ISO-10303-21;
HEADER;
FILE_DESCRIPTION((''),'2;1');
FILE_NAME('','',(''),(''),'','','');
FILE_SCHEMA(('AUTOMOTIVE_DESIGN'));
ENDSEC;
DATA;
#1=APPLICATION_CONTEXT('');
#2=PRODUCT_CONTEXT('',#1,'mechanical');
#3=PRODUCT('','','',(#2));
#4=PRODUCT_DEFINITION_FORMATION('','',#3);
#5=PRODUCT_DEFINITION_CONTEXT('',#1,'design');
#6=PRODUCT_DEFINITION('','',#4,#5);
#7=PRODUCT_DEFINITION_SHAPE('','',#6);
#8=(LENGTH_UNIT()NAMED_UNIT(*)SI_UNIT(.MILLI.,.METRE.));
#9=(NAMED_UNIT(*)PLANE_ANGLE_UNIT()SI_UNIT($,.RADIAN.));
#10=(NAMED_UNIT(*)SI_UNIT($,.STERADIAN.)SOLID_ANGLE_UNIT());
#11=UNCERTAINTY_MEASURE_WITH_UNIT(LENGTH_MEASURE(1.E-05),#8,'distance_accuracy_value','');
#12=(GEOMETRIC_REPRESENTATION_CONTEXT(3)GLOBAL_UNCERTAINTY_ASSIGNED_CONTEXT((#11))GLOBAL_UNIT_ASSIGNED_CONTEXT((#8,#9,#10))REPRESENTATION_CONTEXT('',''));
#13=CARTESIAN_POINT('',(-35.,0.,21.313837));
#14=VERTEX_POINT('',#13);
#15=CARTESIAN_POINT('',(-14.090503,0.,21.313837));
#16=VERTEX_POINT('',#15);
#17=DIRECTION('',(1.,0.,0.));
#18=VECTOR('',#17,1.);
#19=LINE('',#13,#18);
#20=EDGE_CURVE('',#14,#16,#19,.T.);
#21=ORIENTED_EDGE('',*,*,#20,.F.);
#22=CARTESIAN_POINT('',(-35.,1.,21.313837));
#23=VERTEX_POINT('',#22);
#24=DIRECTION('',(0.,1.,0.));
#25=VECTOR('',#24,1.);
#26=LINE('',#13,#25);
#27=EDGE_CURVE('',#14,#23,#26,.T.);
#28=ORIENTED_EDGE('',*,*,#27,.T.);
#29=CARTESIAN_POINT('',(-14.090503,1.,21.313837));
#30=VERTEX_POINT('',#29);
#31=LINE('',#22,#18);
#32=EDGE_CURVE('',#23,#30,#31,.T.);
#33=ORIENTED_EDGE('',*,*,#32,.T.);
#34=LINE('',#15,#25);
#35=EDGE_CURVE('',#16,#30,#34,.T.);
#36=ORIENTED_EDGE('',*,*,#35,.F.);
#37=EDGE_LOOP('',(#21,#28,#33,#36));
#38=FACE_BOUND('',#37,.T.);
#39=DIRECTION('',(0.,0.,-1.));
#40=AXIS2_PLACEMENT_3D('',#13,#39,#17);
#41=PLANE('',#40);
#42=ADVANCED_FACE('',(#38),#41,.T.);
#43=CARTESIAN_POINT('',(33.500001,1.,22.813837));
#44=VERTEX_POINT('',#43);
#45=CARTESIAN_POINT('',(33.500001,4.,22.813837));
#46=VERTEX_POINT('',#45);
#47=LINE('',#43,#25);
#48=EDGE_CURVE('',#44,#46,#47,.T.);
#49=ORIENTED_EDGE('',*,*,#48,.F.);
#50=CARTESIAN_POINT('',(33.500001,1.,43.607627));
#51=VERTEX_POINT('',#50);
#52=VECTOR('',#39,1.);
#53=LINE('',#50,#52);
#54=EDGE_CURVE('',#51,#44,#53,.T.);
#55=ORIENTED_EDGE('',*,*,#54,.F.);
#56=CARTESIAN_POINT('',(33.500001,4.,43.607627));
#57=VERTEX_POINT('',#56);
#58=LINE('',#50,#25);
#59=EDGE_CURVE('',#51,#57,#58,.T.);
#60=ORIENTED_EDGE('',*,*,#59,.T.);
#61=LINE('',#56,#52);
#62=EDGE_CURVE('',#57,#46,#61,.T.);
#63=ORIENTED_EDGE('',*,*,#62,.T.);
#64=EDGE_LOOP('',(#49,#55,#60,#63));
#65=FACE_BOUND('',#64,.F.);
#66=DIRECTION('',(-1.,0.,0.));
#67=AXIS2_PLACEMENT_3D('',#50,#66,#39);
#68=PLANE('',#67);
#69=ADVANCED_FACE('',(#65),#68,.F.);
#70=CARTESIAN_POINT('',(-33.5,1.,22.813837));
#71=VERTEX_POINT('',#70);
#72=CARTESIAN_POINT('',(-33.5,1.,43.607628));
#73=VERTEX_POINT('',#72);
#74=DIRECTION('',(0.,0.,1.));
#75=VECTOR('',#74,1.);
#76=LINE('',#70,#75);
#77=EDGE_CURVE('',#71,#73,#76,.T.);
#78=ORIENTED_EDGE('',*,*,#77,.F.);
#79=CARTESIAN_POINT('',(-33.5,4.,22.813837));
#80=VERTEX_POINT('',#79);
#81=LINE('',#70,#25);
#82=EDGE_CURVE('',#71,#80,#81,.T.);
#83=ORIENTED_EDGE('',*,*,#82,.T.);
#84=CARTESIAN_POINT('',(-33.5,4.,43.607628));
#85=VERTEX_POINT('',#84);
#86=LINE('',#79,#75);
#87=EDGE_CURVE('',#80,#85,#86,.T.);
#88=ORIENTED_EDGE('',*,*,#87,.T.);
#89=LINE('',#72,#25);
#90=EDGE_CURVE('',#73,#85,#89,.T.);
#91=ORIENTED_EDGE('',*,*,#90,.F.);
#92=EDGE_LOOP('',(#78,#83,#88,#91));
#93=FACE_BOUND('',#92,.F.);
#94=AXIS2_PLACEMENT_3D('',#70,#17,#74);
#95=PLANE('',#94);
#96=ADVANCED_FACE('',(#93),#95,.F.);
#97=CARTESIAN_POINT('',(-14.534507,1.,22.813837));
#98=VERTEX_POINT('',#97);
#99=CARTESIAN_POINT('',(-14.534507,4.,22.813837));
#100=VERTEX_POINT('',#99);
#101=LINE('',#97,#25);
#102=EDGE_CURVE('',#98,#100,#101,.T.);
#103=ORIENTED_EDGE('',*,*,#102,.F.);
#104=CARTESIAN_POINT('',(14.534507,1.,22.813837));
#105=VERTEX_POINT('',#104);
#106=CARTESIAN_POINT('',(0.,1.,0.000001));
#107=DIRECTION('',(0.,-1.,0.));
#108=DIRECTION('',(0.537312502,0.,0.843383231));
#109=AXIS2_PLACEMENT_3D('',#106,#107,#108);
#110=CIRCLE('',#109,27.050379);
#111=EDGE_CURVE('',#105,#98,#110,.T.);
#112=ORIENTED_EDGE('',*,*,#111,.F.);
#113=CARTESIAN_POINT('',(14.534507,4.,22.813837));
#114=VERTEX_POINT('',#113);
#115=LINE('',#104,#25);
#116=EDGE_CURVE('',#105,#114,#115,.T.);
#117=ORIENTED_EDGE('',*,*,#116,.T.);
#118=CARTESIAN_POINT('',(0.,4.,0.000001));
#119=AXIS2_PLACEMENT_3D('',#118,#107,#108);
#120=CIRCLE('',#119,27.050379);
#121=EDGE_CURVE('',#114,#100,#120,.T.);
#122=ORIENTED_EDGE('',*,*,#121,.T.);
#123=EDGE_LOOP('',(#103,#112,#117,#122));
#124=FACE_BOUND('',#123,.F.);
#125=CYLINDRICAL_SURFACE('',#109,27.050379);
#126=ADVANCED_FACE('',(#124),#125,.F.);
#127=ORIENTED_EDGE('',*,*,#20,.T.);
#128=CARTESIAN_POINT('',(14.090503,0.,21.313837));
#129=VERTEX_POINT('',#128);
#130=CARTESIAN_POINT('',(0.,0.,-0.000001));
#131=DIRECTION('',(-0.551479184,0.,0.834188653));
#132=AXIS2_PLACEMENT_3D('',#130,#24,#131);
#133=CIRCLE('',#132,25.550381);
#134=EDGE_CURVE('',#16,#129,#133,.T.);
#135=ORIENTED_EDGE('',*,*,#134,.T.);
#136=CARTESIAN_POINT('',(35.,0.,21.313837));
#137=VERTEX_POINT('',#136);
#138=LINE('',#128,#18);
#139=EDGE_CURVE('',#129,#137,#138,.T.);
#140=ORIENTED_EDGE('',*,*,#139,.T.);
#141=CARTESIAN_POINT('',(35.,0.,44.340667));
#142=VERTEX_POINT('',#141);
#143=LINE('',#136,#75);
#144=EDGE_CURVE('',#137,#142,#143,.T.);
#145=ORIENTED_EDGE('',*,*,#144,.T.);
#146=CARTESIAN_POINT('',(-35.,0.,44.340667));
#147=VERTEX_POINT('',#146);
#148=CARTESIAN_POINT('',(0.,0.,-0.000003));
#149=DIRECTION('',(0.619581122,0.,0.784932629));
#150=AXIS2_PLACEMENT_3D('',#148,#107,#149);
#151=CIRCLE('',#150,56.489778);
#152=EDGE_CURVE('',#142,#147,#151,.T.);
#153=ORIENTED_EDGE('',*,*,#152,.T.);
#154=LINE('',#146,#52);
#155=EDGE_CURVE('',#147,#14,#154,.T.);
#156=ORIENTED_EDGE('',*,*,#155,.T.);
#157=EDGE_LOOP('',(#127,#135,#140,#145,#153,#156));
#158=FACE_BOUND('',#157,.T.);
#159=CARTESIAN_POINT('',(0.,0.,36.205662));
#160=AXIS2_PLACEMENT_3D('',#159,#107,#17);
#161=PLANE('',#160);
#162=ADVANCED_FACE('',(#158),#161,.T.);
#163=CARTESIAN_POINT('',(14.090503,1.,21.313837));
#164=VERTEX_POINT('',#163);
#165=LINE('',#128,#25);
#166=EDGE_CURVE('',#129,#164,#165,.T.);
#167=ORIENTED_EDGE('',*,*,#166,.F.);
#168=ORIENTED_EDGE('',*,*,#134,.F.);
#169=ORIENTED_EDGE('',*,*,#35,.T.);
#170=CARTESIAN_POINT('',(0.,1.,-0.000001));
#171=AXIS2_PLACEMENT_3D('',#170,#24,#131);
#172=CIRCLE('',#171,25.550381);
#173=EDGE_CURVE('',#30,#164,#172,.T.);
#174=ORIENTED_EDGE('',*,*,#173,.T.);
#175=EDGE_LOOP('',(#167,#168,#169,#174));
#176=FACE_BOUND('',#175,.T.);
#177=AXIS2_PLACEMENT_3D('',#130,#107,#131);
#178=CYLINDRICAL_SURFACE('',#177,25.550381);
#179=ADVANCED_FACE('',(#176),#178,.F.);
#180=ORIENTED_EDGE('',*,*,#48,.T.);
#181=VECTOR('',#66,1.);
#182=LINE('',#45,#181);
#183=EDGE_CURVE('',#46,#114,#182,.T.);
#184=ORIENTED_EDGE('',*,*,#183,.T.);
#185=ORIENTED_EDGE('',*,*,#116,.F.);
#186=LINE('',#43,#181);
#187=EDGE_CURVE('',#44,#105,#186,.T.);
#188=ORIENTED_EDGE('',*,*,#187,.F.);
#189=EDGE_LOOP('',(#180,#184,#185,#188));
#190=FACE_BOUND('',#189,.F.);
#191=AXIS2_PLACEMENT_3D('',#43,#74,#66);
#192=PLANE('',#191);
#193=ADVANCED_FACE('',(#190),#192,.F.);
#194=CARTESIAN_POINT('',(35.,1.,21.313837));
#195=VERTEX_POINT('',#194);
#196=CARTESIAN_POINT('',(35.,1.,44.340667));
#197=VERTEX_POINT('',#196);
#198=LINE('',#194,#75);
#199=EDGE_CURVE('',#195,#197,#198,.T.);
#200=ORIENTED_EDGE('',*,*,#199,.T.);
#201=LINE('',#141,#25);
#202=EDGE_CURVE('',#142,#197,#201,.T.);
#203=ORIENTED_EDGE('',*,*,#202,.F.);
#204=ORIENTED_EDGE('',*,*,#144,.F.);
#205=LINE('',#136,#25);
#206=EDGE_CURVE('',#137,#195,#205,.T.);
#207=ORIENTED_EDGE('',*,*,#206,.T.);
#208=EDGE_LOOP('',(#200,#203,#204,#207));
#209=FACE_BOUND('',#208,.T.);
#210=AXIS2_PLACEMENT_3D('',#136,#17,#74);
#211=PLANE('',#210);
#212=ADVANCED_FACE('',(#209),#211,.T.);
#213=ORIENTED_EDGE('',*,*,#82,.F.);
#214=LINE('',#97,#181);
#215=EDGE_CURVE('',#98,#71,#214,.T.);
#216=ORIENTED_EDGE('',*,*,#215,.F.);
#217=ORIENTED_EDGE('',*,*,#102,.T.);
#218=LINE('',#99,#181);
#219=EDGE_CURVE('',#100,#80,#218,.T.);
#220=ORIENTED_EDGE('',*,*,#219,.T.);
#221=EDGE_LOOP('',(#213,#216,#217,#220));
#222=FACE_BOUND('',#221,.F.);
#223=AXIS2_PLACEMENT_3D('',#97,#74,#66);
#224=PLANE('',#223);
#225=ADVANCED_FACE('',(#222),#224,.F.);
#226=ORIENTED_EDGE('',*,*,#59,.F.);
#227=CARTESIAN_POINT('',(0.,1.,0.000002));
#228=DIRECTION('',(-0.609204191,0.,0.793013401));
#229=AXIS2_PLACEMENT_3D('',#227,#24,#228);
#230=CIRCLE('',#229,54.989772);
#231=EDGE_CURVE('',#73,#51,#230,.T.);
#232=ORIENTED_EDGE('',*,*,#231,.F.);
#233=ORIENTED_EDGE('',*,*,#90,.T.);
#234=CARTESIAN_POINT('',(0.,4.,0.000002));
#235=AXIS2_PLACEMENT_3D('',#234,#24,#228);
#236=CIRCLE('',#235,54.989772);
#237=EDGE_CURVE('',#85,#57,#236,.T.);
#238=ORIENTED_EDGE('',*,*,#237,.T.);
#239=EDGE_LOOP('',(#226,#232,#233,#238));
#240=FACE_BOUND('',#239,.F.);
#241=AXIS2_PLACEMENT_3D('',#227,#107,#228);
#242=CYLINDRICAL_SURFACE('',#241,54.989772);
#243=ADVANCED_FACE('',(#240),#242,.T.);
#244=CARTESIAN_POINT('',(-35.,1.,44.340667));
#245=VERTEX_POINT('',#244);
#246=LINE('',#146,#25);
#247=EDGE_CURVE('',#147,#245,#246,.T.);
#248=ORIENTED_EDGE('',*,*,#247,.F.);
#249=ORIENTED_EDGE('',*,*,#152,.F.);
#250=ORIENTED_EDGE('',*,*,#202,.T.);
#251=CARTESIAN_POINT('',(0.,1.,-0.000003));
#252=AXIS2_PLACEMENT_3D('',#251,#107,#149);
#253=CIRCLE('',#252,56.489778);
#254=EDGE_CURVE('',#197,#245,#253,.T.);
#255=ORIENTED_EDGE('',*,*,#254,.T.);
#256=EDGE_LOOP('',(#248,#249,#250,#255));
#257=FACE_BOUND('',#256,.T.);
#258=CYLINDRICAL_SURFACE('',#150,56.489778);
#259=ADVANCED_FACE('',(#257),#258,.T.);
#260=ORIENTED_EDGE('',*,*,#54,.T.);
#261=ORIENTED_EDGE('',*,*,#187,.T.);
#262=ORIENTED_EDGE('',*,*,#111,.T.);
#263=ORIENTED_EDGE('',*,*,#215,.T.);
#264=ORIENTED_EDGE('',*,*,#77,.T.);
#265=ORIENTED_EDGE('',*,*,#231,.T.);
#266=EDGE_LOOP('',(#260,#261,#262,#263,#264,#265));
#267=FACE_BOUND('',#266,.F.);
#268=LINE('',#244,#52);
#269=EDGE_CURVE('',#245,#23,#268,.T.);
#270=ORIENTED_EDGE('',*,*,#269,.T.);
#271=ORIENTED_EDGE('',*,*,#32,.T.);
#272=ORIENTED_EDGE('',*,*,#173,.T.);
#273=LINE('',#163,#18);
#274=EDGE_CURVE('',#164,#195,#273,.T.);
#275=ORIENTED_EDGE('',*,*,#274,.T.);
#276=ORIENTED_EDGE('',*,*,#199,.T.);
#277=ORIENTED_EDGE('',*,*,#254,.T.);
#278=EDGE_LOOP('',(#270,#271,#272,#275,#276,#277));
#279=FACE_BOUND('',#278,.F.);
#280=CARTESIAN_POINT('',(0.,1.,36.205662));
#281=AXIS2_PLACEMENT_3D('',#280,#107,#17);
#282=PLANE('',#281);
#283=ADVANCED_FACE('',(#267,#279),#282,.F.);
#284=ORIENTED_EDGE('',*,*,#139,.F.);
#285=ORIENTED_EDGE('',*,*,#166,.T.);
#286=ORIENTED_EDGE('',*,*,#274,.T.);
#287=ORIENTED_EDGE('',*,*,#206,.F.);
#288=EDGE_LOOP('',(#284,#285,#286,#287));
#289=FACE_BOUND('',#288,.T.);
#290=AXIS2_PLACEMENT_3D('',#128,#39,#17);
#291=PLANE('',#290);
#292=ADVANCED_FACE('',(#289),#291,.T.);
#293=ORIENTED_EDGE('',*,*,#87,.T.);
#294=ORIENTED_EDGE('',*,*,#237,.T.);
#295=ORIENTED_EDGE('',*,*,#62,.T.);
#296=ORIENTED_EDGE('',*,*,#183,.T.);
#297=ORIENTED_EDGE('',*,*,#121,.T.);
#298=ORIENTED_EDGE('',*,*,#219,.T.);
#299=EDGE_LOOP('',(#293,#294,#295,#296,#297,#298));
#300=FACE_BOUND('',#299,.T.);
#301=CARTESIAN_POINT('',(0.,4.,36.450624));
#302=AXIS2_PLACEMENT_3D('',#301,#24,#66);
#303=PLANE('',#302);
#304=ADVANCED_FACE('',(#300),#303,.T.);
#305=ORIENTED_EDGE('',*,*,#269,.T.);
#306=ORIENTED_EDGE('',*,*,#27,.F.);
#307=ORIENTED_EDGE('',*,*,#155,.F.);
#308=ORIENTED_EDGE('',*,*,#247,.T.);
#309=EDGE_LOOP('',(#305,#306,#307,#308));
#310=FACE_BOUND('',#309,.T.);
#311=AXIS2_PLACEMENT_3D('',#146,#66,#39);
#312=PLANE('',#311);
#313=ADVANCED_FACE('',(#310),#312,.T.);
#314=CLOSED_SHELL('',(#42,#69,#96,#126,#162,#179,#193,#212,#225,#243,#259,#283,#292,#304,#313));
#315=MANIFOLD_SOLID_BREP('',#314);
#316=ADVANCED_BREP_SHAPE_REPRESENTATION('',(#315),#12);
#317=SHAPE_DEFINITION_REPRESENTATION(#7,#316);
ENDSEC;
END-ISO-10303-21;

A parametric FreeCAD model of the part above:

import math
import FreeCAD as App
import Part
import Sketcher
from FreeCAD import Vector

doc = App.newDocument("Part")
params = doc.addObject("Spreadsheet::Sheet", "Params")
for row, (alias, value) in enumerate([
    ("pad1_length", "1 mm"),
    ("pad2_length", "3 mm"),
], start=1):
    params.set(f"A{row}", alias)
    params.set(f"B{row}", "=" + value)
    params.setAlias(f"B{row}", alias)

body = doc.addObject("PartDesign::Body", "Body")

sketch1 = body.newObject("Sketcher::SketchObject", "Sketch")
sketch1.AttachmentSupport = (doc.getObject("XZ_Plane"), [""])
sketch1.MapMode = "FlatFace"
sketch1.addGeometry([
    Part.LineSegment(Vector(14, 21, 0), Vector(35, 21, 0)),
    Part.LineSegment(Vector(35, 21, 0), Vector(35, 44, 0)),
    Part.ArcOfCircle(Part.Circle(Vector(0, 0, 0), Vector(0, 0, 1), 56), math.radians(52), math.radians(128)),
    Part.LineSegment(Vector(-35, 44, 0), Vector(-35, 21, 0)),
    Part.LineSegment(Vector(-35, 21, 0), Vector(-14, 21, 0)),
    Part.ArcOfCircle(Part.Circle(Vector(0, 0, 0), Vector(0, 0, 1), 26), math.radians(57), math.radians(123)),
], False)
sketch1.addConstraint([
    Sketcher.Constraint("Coincident", 0, 2, 1, 1),
    Sketcher.Constraint("Coincident", 1, 2, 2, 1),
    Sketcher.Constraint("Coincident", 2, 2, 3, 1),
    Sketcher.Constraint("Coincident", 3, 2, 4, 1),
    Sketcher.Constraint("Coincident", 4, 2, 5, 2),
    Sketcher.Constraint("Coincident", 5, 1, 0, 1),
    Sketcher.Constraint("Horizontal", 0),
    Sketcher.Constraint("Vertical", 1),
    Sketcher.Constraint("Vertical", 3),
    Sketcher.Constraint("Horizontal", 4),
    Sketcher.Constraint("Coincident", 2, 3, -1, 1),
    Sketcher.Constraint("Coincident", 5, 3, -1, 1),
    Sketcher.Constraint("Symmetric", 0, 2, 3, 2, -2),
    Sketcher.Constraint("DistanceX", -1, 1, 0, 2, 35.0),
    Sketcher.Constraint("Radius", 5, 25.550381),
    Sketcher.Constraint("Radius", 2, 56.489778),
    Sketcher.Constraint("DistanceY", 1, 1, 1, 2, 23.02683),
])
pad1 = body.newObject("PartDesign::Pad", "Pad")
pad1.Profile = sketch1
pad1.setExpression("Length", "Params.pad1_length")
pad1.Reversed = True

sketch2 = body.newObject("Sketcher::SketchObject", "Sketch001")
sketch2.AttachmentSupport = (doc.getObject("XZ_Plane"), [""])
sketch2.MapMode = "FlatFace"
sketch2.AttachmentOffset = App.Placement(Vector(0, 0, -1), App.Rotation())
sketch2.addGeometry([
    Part.ArcOfCircle(Part.Circle(Vector(0, 0, 0), Vector(0, 0, 1), 55), math.radians(52), math.radians(128)),
    Part.LineSegment(Vector(34, 44, 0), Vector(34, 23, 0)),
    Part.LineSegment(Vector(34, 23, 0), Vector(15, 23, 0)),
    Part.ArcOfCircle(Part.Circle(Vector(0, 0, 0), Vector(0, 0, 1), 27), math.radians(57), math.radians(123)),
    Part.LineSegment(Vector(-15, 23, 0), Vector(-34, 23, 0)),
    Part.LineSegment(Vector(-34, 23, 0), Vector(-34, 44, 0)),
], False)
sketch2.addConstraint([
    Sketcher.Constraint("Coincident", 0, 1, 1, 1),
    Sketcher.Constraint("Coincident", 1, 2, 2, 1),
    Sketcher.Constraint("Coincident", 2, 2, 3, 1),
    Sketcher.Constraint("Coincident", 3, 2, 4, 1),
    Sketcher.Constraint("Coincident", 4, 2, 5, 1),
    Sketcher.Constraint("Coincident", 5, 2, 0, 2),
    Sketcher.Constraint("Vertical", 1),
    Sketcher.Constraint("Horizontal", 2),
    Sketcher.Constraint("Horizontal", 4),
    Sketcher.Constraint("Vertical", 5),
    Sketcher.Constraint("Coincident", 0, 3, -1, 1),
    Sketcher.Constraint("Coincident", 3, 3, -1, 1),
    Sketcher.Constraint("Symmetric", 1, 2, 4, 2, -2),
    Sketcher.Constraint("DistanceX", 4, 2, 1, 2, 67.000001),
    Sketcher.Constraint("Radius", 3, 27.050379),
    Sketcher.Constraint("Radius", 0, 54.989772),
    Sketcher.Constraint("DistanceY", 1, 2, 1, 1, 20.79379),
])
pad2 = body.newObject("PartDesign::Pad", "Pad001")
pad2.Profile = sketch2
pad2.setExpression("Length", "Params.pad2_length")
pad2.Reversed = True

doc.recompute()
